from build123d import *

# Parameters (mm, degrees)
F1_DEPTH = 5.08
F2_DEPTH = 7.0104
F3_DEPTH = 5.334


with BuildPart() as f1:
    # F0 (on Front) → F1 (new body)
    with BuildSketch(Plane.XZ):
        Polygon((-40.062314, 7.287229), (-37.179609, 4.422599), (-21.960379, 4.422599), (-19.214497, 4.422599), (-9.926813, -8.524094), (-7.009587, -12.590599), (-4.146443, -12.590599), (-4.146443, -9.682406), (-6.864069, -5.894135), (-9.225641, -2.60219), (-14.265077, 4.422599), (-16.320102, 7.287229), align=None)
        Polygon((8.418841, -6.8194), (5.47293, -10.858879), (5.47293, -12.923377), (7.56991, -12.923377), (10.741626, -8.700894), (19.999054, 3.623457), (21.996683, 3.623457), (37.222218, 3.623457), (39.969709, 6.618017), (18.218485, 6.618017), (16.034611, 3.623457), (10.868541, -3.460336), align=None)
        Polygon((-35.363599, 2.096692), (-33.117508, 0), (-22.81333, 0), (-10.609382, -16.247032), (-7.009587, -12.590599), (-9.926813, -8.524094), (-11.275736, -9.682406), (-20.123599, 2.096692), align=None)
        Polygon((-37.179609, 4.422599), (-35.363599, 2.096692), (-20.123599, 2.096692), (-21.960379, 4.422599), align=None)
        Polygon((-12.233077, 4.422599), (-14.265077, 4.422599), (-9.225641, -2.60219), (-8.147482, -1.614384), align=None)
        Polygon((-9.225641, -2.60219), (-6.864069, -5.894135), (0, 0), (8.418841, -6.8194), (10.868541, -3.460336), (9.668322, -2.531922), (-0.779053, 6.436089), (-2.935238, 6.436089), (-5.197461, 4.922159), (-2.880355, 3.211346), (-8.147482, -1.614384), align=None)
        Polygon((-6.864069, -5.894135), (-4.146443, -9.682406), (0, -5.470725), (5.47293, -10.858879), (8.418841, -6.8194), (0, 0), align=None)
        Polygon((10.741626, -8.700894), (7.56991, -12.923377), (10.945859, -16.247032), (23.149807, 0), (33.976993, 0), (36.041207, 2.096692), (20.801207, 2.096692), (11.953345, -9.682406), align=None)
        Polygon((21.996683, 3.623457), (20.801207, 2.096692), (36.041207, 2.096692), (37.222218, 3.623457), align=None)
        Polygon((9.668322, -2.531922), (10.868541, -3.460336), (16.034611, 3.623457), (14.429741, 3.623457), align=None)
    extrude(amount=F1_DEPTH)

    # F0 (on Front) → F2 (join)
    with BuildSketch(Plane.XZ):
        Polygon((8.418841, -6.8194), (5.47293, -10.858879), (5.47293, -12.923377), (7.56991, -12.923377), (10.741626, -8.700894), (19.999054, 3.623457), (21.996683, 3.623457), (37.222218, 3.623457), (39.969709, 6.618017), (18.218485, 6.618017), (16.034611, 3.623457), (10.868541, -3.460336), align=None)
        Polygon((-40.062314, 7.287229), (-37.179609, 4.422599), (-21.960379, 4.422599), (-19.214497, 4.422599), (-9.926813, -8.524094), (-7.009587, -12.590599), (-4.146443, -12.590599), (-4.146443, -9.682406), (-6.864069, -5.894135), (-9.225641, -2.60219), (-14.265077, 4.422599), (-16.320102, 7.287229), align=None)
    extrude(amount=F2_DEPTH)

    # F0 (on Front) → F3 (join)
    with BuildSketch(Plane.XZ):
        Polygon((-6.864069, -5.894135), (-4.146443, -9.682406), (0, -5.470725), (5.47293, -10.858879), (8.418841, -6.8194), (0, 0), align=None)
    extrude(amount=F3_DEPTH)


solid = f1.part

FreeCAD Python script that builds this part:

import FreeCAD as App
import Part
import Sketcher
Q = App.Units.Quantity


def add_polygon(sketch, points):
    """Adds a closed chain of lines whose ends are joined by coincident constraints."""
    first, n = sketch.GeometryCount, len(points)
    for a, b in zip(points, points[1:] + points[:1]):
        sketch.addGeometry(Part.LineSegment(App.Vector(*a, 0), App.Vector(*b, 0)), False)
    for i in range(n):
        sketch.addConstraint(Sketcher.Constraint("Coincident", first + i, 2, first + (i + 1) % n, 1))

doc = App.newDocument("Part")
params = doc.addObject("Spreadsheet::Sheet", "Params")
for row, (alias, value) in enumerate([
    ("sketch1_length", "0.8 in"),
    ("sketch1_length2", "0.8 in"),
    ("sketch1_width", "0.08 in"),
    ("sketch1_length3", "0.16 in"),
    ("sketch1_length4", "0.16 in"),
    ("pad1_length", "0.2 in"),
    ("sketch2_length", "0.16 in"),
    ("pad2_length", "0.276 in"),
    ("pad3_length", "0.21 in"),
], start=1):
    params.set(f"A{row}", alias)
    params.set(f"B{row}", "=" + value)
    params.setAlias(f"B{row}", alias)

body = doc.addObject("PartDesign::Body", "Body")

# Sketch on XZ plane
sketch1 = body.newObject("Sketcher::SketchObject", "Sketch")
sketch1.AttachmentSupport = (doc.getObject("XZ_Plane"), [""])
sketch1.MapMode = "FlatFace"
add_polygon(sketch1, [(-40.062314, 7.287229), (-37.179609, 4.422599), (-35.363599, 2.096692), (-33.117508, 0), (-22.81333, 0), (-10.609382, -16.247032), (-7.009587, -12.590599), (-4.146443, -12.590599), (-4.146443, -9.682406), (0, -5.470725), (5.47293, -10.858879), (5.47293, -12.923377), (7.56991, -12.923377), (10.945859, -16.247032), (23.149807, 0), (33.976993, 0), (36.041207, 2.096692), (37.222218, 3.623457), (39.969709, 6.618017), (18.218485, 6.618017), (16.034611, 3.623457), (14.429741, 3.623457), (9.668322, -2.531922), (-0.779053, 6.436089), (-2.935238, 6.436089), (-5.197461, 4.922159), (-2.880355, 3.211346), (-8.147482, -1.614384), (-12.233077, 4.422599), (-14.265077, 4.422599), (-16.320102, 7.287229)])  # lines 0-30
add_polygon(sketch1, [(20.801207, 2.096692), (11.953345, -9.682406), (10.741626, -8.700894), (19.999054, 3.623457), (21.996683, 3.623457)])  # lines 31-35
add_polygon(sketch1, [(-21.960379, 4.422599), (-19.214497, 4.422599), (-9.926813, -8.524094), (-11.275736, -9.682406), (-20.123599, 2.096692)])  # lines 36-40
sketch1.addConstraint(Sketcher.Constraint("Horizontal", 3))
sketch1.addConstraint(Sketcher.Constraint("Horizontal", 6))
sketch1.addConstraint(Sketcher.Constraint("Vertical", 7))
sketch1.addConstraint(Sketcher.Constraint("Vertical", 10))
sketch1.addConstraint(Sketcher.Constraint("Horizontal", 11))
sketch1.addConstraint(Sketcher.Constraint("Horizontal", 14))
sketch1.addConstraint(Sketcher.Constraint("Horizontal", 18))
sketch1.addConstraint(Sketcher.Constraint("Horizontal", 20))
sketch1.addConstraint(Sketcher.Constraint("Horizontal", 23))
sketch1.addConstraint(Sketcher.Constraint("Horizontal", 28))
sketch1.addConstraint(Sketcher.Constraint("Horizontal", 30))
sketch1.addConstraint(Sketcher.Constraint("Horizontal", 34))
sketch1.addConstraint(Sketcher.Constraint("Horizontal", 36))
sketch1.addConstraint(Sketcher.Constraint("PointOnObject", 2, 2, -1))
sketch1.addConstraint(Sketcher.Constraint("PointOnObject", 8, 2, -2))
sketch1.addConstraint(Sketcher.Constraint("PointOnObject", 13, 2, -1))
sketch1.addConstraint(Sketcher.Constraint("Distance", 4, Q("0.8 in")))
sketch1.addConstraint(Sketcher.Constraint("Distance", 13, Q("0.8 in")))
sketch1.addConstraint(Sketcher.Constraint("DistanceX", 28, 2, 28, 1, Q("0.08 in")))
sketch1.addConstraint(Sketcher.Constraint("Distance", 0, Q("0.16 in")))
sketch1.addConstraint(Sketcher.Constraint("Distance", 17, Q("0.16 in")))
sketch1.addConstraint(Sketcher.Constraint("Distance", 31, Q("0.58 in")))
sketch1.addConstraint(Sketcher.Constraint("Distance", 38, Q("0.07 in")))
sketch1.addConstraint(Sketcher.Constraint("Distance", 39, Q("0.58 in")))
sketch1.addConstraint(Sketcher.Constraint("DistanceY", 10, 2, 10, 1, Q("2.064498 mm")))
sketch1.addConstraint(Sketcher.Constraint("DistanceX", -1, 1, 20, 2, Q("0.5681 in")))
sketch1.addConstraint(Sketcher.Constraint("DistanceX", 25, 2, -1, 1, Q("0.1133998 in")))
sketch1.addConstraint(Sketcher.Constraint("DistanceX", 11, 1, 11, 2, Q("2.09698 mm")))
sketch1.addConstraint(Sketcher.Constraint("DistanceX", 20, 2, 20, 1, Q("1.60487 mm")))
sketch1.addConstraint(Sketcher.Constraint("DistanceX", 34, 1, 34, 2, Q("1.997629 mm")))
sketch1.addConstraint(Sketcher.Constraint("DistanceX", 36, 1, 36, 2, Q("2.745882 mm")))
sketch1.addConstraint(Sketcher.Constraint("DistanceY", -1, 1, 0, 2, Q("4.422599 mm")))
sketch1.addConstraint(Sketcher.Constraint("DistanceX", 1, 2, -1, 1, Q("35.363599 mm")))
sketch1.addConstraint(Sketcher.Constraint("DistanceY", 5, 2, -1, 1, Q("12.590599 mm")))
sketch1.addConstraint(Sketcher.Constraint("DistanceY", -1, 1, 27, 2, Q("4.422599 mm")))
sketch1.addConstraint(Sketcher.Constraint("DistanceX", 29, 2, -1, 1, Q("16.320102 mm")))
sketch1.addConstraint(Sketcher.Constraint("DistanceY", -1, 1, 36, 2, Q("4.422599 mm")))
sketch1.addConstraint(Sketcher.Constraint("DistanceX", 39, 2, -1, 1, Q("20.123599 mm")))
sketch1.addConstraint(Sketcher.Constraint("DistanceX", 0, 2, 2, 2, Q("4.062101 mm")))
sketch1.addConstraint(Sketcher.Constraint("DistanceX", 13, 2, 15, 2, Q("12.8914 mm")))
sketch1.addConstraint(Sketcher.Constraint("DistanceX", 35, 2, 13, 2, Q("2.3486 mm")))
sketch1.addConstraint(Sketcher.Constraint("DistanceX", 39, 2, 36, 2, Q("0.909102 mm")))
sketch1.addConstraint(Sketcher.Constraint("Distance", 9, Q("7.68018 mm")))
sketch1.addConstraint(Sketcher.Constraint("Distance", 12, Q("4.73748 mm")))
sketch1.addConstraint(Sketcher.Constraint("Distance", 26, Q("7.143549 mm")))
sketch1.addConstraint(Sketcher.Constraint("Distance", 27, Q("7.28953 mm")))
sketch1.addConstraint(Sketcher.Constraint("Distance", 29, Q("3.525512 mm")))
sketch1.addConstraint(Sketcher.Constraint("Distance", 32, Q("1.559368 mm")))
sketch1.addConstraint(Sketcher.Constraint("Distance", 33, Q("15.413942 mm")))
sketch1.addConstraint(Sketcher.Constraint("DistanceX", 3, 1, 3, 2, Q("10.304178 mm")))
sketch1.addConstraint(Sketcher.Constraint("DistanceX", 6, 1, 6, 2, Q("2.863144 mm")))
sketch1.addConstraint(Sketcher.Constraint("DistanceX", 14, 1, 14, 2, Q("10.827186 mm")))
sketch1.addConstraint(Sketcher.Constraint("DistanceX", 18, 2, 18, 1, Q("21.751224 mm")))
sketch1.addConstraint(Sketcher.Constraint("DistanceX", 23, 2, 23, 1, Q("2.156185 mm")))
sketch1.addConstraint(Sketcher.Constraint("DistanceX", 30, 2, 30, 1, Q("23.742212 mm")))
sketch1.addConstraint(Sketcher.Constraint("DistanceY", 7, 1, 7, 2, Q("2.908193 mm")))
sketch1.addConstraint(Sketcher.Constraint("DistanceX", 0, 2, -1, 1, Q("37.179609 mm")))
sketch1.addConstraint(Sketcher.Constraint("DistanceY", -1, 1, 1, 2, Q("2.096692 mm")))
sketch1.addConstraint(Sketcher.Constraint("DistanceX", -1, 1, 9, 2, Q("5.47293 mm")))
sketch1.addConstraint(Sketcher.Constraint("DistanceY", 9, 2, -1, 1, Q("10.858879 mm")))
sketch1.addConstraint(Sketcher.Constraint("DistanceX", -1, 1, 12, 2, Q("10.945859 mm")))
sketch1.addConstraint(Sketcher.Constraint("DistanceY", -1, 1, 15, 2, Q("2.096692 mm")))
sketch1.addConstraint(Sketcher.Constraint("DistanceX", -1, 1, 17, 2, Q("39.969709 mm")))
sketch1.addConstraint(Sketcher.Constraint("DistanceY", 21, 2, -1, 1, Q("2.531922 mm")))
sketch1.addConstraint(Sketcher.Constraint("DistanceY", -1, 1, 22, 2, Q("6.436089 mm")))
sketch1.addConstraint(Sketcher.Constraint("DistanceX", 23, 2, -1, 1, Q("2.935238 mm")))
sketch1.addConstraint(Sketcher.Constraint("DistanceX", 24, 2, -1, 1, Q("5.197461 mm")))
sketch1.addConstraint(Sketcher.Constraint("DistanceY", -1, 1, 24, 2, Q("4.922159 mm")))
sketch1.addConstraint(Sketcher.Constraint("DistanceY", -1, 1, 35, 2, Q("2.096692 mm")))
sketch1.addConstraint(Sketcher.Constraint("DistanceY", -1, 1, 39, 2, Q("2.096692 mm")))
sketch1.addConstraint(Sketcher.Constraint("DistanceY", 4, 2, 0, 2, Q("20.669631 mm")))
sketch1.addConstraint(Sketcher.Constraint("DistanceX", 2, 2, 5, 2, Q("26.107921 mm")))
sketch1.addConstraint(Sketcher.Constraint("DistanceX", 15, 2, 16, 2, Q("1.181011 mm")))
sketch1.addConstraint(Sketcher.Constraint("DistanceY", 12, 2, 16, 2, Q("19.870489 mm")))
sketch1.addConstraint(Sketcher.Constraint("DistanceY", 19, 2, 18, 2, Q("2.99456 mm")))
sketch1.addConstraint(Sketcher.Constraint("DistanceX", 21, 2, 20, 2, Q("4.761419 mm")))
sketch1.addConstraint(Sketcher.Constraint("DistanceY", 8, 2, 25, 2, Q("8.682071 mm")))
sketch1.addConstraint(Sketcher.Constraint("DistanceY", 11, 2, 31, 2, Q("3.240971 mm")))
sketch1.addConstraint(Sketcher.Constraint("DistanceX", 32, 2, 31, 2, Q("1.211719 mm")))
sketch1.addConstraint(Sketcher.Constraint("DistanceX", 18, 2, 33, 2, Q("1.780569 mm")))
sketch1.addConstraint(Sketcher.Constraint("DistanceX", 37, 2, 7, 2, Q("5.78037 mm")))
sketch1.addConstraint(Sketcher.Constraint("DistanceY", 37, 2, 26, 2, Q("6.90971 mm")))
sketch1.setExpression("Constraints[57]", "Params.sketch1_length")
sketch1.setExpression("Constraints[58]", "Params.sketch1_length2")
sketch1.setExpression("Constraints[59]", "Params.sketch1_width")
sketch1.setExpression("Constraints[60]", "Params.sketch1_length3")
sketch1.setExpression("Constraints[61]", "Params.sketch1_length4")
pad1 = body.newObject("PartDesign::Pad", "Pad")
pad1.Profile = sketch1
pad1.setExpression("Length", "Params.pad1_length")

# Sketch on XZ plane
sketch2 = body.newObject("Sketcher::SketchObject", "Sketch001")
sketch2.AttachmentSupport = (doc.getObject("XZ_Plane"), [""])
sketch2.MapMode = "FlatFace"
add_polygon(sketch2, [(8.418841, -6.8194), (5.47293, -10.858879), (5.47293, -12.923377), (7.56991, -12.923377), (10.741626, -8.700894), (19.999054, 3.623457), (37.222218, 3.623457), (39.969709, 6.618017), (18.218485, 6.618017), (16.034611, 3.623457), (10.868541, -3.460336)])  # lines 0-10
add_polygon(sketch2, [(-40.062314, 7.287229), (-37.179609, 4.422599), (-19.214497, 4.422599), (-9.926813, -8.524094), (-7.009587, -12.590599), (-4.146443, -12.590599), (-4.146443, -9.682406), (-6.864069, -5.894135), (-9.225641, -2.60219), (-14.265077, 4.422599), (-16.320102, 7.287229)])  # lines 11-21
sketch2.addConstraint(Sketcher.Constraint("Vertical", 1))
sketch2.addConstraint(Sketcher.Constraint("Horizontal", 2))
sketch2.addConstraint(Sketcher.Constraint("Horizontal", 5))
sketch2.addConstraint(Sketcher.Constraint("Horizontal", 7))
sketch2.addConstraint(Sketcher.Constraint("Horizontal", 12))
sketch2.addConstraint(Sketcher.Constraint("Horizontal", 15))
sketch2.addConstraint(Sketcher.Constraint("Vertical", 16))
sketch2.addConstraint(Sketcher.Constraint("Horizontal", 21))
sketch2.addConstraint(Sketcher.Constraint("Parallel", 3, 4))
sketch2.addConstraint(Sketcher.Constraint("Parallel", 0, 8))
sketch2.addConstraint(Sketcher.Constraint("Parallel", 8, 9))
sketch2.addConstraint(Sketcher.Constraint("Parallel", 9, 10))
sketch2.addConstraint(Sketcher.Constraint("Parallel", 13, 14))
sketch2.addConstraint(Sketcher.Constraint("Parallel", 14, 17))
sketch2.addConstraint(Sketcher.Constraint("Parallel", 17, 18))
sketch2.addConstraint(Sketcher.Constraint("Parallel", 18, 19))
sketch2.addConstraint(Sketcher.Constraint("Parallel", 19, 20))
sketch2.addConstraint(Sketcher.Constraint("Horizontal", 5, 2, 8, 2))
sketch2.addConstraint(Sketcher.Constraint("Horizontal", 12, 2, 19, 2))
sketch2.addConstraint(Sketcher.Constraint("Equal", 6, 11))
sketch2.addConstraint(Sketcher.Constraint("Distance", 6, Q("0.16 in")))
sketch2.addConstraint(Sketcher.Constraint("DistanceY", 1, 2, 1, 1, Q("2.064498 mm")))
sketch2.addConstraint(Sketcher.Constraint("DistanceY", 1, 2, 13, 2, Q("0.1732001 in")))
sketch2.addConstraint(Sketcher.Constraint("DistanceX", 2, 1, 2, 2, Q("2.09698 mm")))
sketch2.addConstraint(Sketcher.Constraint("DistanceX", 12, 1, 12, 2, Q("17.965112 mm")))
sketch2.addConstraint(Sketcher.Constraint("DistanceY", 10, 2, -1, 1, Q("6.8194 mm")))
sketch2.addConstraint(Sketcher.Constraint("DistanceY", -1, 1, 11, 2, Q("4.422599 mm")))
sketch2.addConstraint(Sketcher.Constraint("DistanceY", 14, 2, -1, 1, Q("12.590599 mm")))
sketch2.addConstraint(Sketcher.Constraint("DistanceX", 20, 2, -1, 1, Q("16.320102 mm")))
sketch2.addConstraint(Sketcher.Constraint("DistanceX", 2, 2, 6, 2, Q("32.399799 mm")))
sketch2.addConstraint(Sketcher.Constraint("DistanceX", 2, 2, 8, 2, Q("8.464701 mm")))
sketch2.addConstraint(Sketcher.Constraint("DistanceX", 10, 2, 9, 2, Q("2.4497 mm")))
sketch2.addConstraint(Sketcher.Constraint("DistanceX", 17, 2, 0, 2, Q("12.336999 mm")))
sketch2.addConstraint(Sketcher.Constraint("Distance", 0, Q("4.999578 mm")))
sketch2.addConstraint(Sketcher.Constraint("Distance", 4, Q("15.413942 mm")))
sketch2.addConstraint(Sketcher.Constraint("Distance", 17, Q("4.662241 mm")))
sketch2.addConstraint(Sketcher.Constraint("Distance", 18, Q("4.05141 mm")))
sketch2.addConstraint(Sketcher.Constraint("Distance", 20, Q("3.525512 mm")))
sketch2.addConstraint(Sketcher.Constraint("DistanceX", 5, 1, 5, 2, Q("17.223164 mm")))
sketch2.addConstraint(Sketcher.Constraint("DistanceX", 7, 2, 7, 1, Q("21.751224 mm")))
sketch2.addConstraint(Sketcher.Constraint("DistanceX", 15, 1, 15, 2, Q("2.863144 mm")))
sketch2.addConstraint(Sketcher.Constraint("DistanceX", 21, 2, 21, 1, Q("23.742212 mm")))
sketch2.addConstraint(Sketcher.Constraint("DistanceY", 16, 1, 16, 2, Q("2.908193 mm")))
sketch2.addConstraint(Sketcher.Constraint("DistanceY", 0, 2, -1, 1, Q("10.858879 mm")))
sketch2.setExpression("Constraints[42]", "Params.sketch2_length")
pad2 = body.newObject("PartDesign::Pad", "Pad001")
pad2.Profile = sketch2
pad2.setExpression("Length", "Params.pad2_length")

# Sketch on XZ plane
sketch3 = body.newObject("Sketcher::SketchObject", "Sketch002")
sketch3.AttachmentSupport = (doc.getObject("XZ_Plane"), [""])
sketch3.MapMode = "FlatFace"
add_polygon(sketch3, [(-6.864069, -5.894135), (-4.146443, -9.682406), (0, -5.470725), (5.47293, -10.858879), (8.418841, -6.8194), (0, 0)])  # lines 0-5
sketch3.addConstraint(Sketcher.Constraint("Coincident", 4, 2, -1, 1))
sketch3.addConstraint(Sketcher.Constraint("PointOnObject", 1, 2, -2))
sketch3.addConstraint(Sketcher.Constraint("Perpendicular", 1, 2))
sketch3.addConstraint(Sketcher.Constraint("DistanceY", 3, 2, -1, 1, Q("6.8194 mm")))
sketch3.addConstraint(Sketcher.Constraint("DistanceX", 5, 2, 2, 2, Q("12.336999 mm")))
sketch3.addConstraint(Sketcher.Constraint("Distance", 0, Q("4.662241 mm")))
sketch3.addConstraint(Sketcher.Constraint("Distance", 2, Q("7.68018 mm")))
sketch3.addConstraint(Sketcher.Constraint("Distance", 3, Q("4.999578 mm")))
sketch3.addConstraint(Sketcher.Constraint("DistanceX", -1, 1, 2, 2, Q("5.47293 mm")))
sketch3.addConstraint(Sketcher.Constraint("DistanceY", 2, 2, -1, 1, Q("10.858879 mm")))
sketch3.addConstraint(Sketcher.Constraint("DistanceY", 0, 2, 1, 2, Q("4.211681 mm")))
pad3 = body.newObject("PartDesign::Pad", "Pad002")
pad3.Profile = sketch3
pad3.setExpression("Length", "Params.pad3_length")

doc.recompute()
